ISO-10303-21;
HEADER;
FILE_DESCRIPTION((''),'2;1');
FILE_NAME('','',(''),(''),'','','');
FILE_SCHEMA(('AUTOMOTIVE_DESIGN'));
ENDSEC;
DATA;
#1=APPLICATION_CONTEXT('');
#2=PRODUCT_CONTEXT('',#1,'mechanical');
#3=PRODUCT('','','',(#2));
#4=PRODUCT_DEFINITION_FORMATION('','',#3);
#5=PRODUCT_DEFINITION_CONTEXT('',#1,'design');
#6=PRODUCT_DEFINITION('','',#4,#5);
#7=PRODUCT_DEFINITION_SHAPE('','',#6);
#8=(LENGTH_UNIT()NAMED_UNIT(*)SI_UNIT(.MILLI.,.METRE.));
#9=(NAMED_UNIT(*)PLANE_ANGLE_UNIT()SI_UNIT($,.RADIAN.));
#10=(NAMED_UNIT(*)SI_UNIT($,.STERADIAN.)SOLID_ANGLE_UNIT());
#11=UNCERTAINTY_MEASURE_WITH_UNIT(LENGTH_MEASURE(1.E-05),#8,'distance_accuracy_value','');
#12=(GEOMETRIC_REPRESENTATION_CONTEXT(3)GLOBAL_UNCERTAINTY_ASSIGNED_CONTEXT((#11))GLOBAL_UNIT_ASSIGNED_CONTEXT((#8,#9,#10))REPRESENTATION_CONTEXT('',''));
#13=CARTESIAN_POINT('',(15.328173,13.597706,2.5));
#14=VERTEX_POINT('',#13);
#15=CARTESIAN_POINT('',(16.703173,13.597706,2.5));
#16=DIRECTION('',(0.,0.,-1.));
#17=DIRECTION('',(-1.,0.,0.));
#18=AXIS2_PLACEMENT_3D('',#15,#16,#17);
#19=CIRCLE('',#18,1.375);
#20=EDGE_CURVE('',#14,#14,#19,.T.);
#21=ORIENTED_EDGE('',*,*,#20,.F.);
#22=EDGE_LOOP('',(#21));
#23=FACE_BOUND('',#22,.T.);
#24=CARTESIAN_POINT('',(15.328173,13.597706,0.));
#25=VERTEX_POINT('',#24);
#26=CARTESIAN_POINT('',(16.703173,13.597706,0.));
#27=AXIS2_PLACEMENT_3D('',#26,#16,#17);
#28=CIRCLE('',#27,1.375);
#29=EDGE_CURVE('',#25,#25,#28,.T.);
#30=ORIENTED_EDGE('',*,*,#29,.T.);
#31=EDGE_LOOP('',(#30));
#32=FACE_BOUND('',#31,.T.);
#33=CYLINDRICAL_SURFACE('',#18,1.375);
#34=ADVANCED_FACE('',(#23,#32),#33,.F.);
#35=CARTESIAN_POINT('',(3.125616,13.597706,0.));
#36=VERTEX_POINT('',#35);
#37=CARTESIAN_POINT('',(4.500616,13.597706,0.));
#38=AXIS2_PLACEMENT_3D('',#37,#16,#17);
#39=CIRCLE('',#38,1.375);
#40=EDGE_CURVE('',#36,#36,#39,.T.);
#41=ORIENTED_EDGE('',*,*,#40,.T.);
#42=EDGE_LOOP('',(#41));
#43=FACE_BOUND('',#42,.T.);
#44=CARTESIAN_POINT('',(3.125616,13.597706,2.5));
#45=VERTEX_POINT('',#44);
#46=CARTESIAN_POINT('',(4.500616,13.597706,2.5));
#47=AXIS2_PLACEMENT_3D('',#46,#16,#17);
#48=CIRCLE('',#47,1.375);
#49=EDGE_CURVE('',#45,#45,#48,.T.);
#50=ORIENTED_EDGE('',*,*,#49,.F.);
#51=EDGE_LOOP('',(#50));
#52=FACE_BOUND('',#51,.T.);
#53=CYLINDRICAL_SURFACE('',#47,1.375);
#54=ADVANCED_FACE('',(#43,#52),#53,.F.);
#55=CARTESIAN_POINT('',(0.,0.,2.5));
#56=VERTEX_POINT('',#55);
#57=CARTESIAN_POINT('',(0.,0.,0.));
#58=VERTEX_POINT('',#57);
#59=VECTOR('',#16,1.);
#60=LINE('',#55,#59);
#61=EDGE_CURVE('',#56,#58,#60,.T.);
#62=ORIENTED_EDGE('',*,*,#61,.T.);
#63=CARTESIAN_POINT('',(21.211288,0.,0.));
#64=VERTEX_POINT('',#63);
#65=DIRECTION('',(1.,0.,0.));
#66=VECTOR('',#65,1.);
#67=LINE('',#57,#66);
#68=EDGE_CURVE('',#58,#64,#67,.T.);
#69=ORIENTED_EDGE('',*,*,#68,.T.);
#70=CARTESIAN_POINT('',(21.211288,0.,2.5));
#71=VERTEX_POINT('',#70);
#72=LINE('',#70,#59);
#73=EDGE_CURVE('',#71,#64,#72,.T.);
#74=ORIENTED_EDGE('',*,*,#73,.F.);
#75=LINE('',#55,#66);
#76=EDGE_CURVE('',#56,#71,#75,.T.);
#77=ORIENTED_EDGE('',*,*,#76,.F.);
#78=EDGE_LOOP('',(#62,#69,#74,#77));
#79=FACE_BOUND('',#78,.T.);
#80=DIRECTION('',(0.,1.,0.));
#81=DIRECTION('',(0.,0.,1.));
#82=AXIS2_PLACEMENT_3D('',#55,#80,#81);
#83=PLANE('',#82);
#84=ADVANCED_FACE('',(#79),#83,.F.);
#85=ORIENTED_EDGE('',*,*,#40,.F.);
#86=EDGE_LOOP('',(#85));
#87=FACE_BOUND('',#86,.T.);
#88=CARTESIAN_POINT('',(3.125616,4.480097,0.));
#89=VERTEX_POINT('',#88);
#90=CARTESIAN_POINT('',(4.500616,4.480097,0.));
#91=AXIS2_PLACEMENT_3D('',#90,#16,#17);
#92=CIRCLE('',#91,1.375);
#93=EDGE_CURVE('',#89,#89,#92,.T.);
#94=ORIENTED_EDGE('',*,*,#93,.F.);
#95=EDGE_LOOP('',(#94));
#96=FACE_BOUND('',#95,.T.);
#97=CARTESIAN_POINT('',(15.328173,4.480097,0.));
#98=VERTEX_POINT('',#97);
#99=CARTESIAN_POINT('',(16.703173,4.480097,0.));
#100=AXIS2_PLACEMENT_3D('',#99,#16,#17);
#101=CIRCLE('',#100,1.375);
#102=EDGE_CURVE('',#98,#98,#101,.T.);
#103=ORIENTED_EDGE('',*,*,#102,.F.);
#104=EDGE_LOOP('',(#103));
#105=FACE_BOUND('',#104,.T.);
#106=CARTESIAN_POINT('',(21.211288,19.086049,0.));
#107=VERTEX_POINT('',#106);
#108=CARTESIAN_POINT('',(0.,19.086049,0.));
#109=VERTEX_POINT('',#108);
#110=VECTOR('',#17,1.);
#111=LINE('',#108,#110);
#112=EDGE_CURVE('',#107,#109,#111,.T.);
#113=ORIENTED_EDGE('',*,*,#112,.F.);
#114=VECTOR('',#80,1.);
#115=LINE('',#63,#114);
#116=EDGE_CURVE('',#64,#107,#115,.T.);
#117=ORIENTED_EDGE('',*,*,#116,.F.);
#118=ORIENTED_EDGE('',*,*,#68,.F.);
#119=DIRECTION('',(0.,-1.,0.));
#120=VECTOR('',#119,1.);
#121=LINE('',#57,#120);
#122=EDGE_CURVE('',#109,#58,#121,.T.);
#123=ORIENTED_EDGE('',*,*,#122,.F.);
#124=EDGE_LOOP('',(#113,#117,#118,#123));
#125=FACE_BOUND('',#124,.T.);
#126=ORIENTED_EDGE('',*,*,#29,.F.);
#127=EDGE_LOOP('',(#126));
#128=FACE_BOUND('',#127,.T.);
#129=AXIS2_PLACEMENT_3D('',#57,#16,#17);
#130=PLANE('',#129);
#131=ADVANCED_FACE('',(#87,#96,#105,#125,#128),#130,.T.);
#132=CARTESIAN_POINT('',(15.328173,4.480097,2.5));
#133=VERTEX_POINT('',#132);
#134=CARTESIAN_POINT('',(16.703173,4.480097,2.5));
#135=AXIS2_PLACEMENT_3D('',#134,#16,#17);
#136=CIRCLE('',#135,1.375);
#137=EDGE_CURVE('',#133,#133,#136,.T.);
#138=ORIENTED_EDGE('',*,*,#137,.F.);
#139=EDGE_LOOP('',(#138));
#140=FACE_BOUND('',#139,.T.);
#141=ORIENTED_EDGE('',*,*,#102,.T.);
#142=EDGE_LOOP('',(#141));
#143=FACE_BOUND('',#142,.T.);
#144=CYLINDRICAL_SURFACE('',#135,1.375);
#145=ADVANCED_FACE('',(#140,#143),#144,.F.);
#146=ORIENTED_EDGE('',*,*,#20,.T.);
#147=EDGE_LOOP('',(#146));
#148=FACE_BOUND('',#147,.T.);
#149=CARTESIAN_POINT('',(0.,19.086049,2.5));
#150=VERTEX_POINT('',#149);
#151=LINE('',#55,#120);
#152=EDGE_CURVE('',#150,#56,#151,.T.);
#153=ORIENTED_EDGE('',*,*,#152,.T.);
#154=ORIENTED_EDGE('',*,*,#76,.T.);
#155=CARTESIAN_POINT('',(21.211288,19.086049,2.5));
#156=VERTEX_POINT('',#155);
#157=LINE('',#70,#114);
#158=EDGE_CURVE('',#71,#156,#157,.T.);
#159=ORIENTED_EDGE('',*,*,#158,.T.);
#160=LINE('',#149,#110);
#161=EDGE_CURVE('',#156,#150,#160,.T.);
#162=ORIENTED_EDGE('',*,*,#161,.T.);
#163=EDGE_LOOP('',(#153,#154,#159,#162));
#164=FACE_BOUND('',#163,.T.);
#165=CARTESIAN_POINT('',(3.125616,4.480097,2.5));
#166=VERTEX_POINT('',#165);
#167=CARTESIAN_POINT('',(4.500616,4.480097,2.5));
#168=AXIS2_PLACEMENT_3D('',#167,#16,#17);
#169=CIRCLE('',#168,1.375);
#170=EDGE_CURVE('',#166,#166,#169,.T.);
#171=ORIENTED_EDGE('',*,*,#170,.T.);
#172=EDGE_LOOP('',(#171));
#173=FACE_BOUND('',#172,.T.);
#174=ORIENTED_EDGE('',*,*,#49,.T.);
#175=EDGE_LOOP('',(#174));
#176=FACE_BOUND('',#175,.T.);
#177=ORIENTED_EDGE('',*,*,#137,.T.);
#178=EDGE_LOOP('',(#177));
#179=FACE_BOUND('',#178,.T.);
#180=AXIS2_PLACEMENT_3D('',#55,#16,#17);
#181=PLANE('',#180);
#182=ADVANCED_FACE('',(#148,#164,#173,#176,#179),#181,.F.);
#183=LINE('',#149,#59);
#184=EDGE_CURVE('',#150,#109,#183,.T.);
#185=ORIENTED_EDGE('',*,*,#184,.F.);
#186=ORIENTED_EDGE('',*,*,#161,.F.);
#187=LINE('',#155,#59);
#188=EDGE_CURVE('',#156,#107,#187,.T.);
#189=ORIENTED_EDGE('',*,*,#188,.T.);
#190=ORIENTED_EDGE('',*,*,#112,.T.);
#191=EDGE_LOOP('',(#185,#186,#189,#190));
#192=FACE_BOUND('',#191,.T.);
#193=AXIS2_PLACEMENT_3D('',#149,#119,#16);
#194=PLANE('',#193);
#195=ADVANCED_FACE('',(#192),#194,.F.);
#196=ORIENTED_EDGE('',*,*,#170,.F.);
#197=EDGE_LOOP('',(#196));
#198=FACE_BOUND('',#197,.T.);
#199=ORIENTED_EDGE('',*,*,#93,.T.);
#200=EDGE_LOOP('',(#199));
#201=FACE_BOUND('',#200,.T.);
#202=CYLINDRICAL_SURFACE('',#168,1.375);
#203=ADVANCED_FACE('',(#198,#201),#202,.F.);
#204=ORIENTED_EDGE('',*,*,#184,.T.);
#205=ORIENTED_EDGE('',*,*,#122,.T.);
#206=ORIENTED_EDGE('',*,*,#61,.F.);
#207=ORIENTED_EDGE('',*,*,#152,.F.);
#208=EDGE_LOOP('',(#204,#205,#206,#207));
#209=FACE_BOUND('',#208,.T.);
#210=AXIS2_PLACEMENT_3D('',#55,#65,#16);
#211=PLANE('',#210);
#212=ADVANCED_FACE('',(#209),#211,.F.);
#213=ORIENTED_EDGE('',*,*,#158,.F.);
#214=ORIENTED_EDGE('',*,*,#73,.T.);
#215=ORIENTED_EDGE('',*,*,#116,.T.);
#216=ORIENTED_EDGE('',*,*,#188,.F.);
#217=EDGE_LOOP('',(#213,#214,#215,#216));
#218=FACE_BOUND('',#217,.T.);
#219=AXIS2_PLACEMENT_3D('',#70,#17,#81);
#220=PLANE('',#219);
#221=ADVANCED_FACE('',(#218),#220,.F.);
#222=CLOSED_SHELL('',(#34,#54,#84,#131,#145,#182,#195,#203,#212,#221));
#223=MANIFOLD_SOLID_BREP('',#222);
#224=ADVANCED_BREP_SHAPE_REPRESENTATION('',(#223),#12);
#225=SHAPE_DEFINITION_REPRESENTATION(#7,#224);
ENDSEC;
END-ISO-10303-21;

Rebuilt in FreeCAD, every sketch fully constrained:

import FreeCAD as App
import Part
import Sketcher

doc = App.newDocument("Part")
params = doc.addObject("Spreadsheet::Sheet", "Params")
for row, (alias, value) in enumerate([
    ("pad1_length", "2.5 mm"),
    ("sketch2_diameter", "2.75 mm"),
], start=1):
    params.set(f"A{row}", alias)
    params.set(f"B{row}", "=" + value)
    params.setAlias(f"B{row}", alias)

body = doc.addObject("PartDesign::Body", "Body")

# Sketch on XY plane
sketch1 = doc.addObject("Sketcher::SketchObject", "Sketch")
body.addObject(sketch1)
sketch1.AttachmentSupport = (doc.XY_Plane, [""])
sketch1.MapMode = "FlatFace"
sketch1.addGeometry([
    Part.LineSegment(App.Vector(0, 19.086049, 0), App.Vector(0, 0, 0)),
    Part.LineSegment(App.Vector(0, 0, 0), App.Vector(21.211288, 0, 0)),
    Part.LineSegment(App.Vector(21.211288, 0, 0), App.Vector(21.211288, 19.086049, 0)),
    Part.LineSegment(App.Vector(21.211288, 19.086049, 0), App.Vector(0, 19.086049, 0)),
], False)
sketch1.addConstraint([
    Sketcher.Constraint("Coincident", 0, 2, 1, 1),
    Sketcher.Constraint("Coincident", 1, 2, 2, 1),
    Sketcher.Constraint("Coincident", 2, 2, 3, 1),
    Sketcher.Constraint("Coincident", 3, 2, 0, 1),
    Sketcher.Constraint("Vertical", 0),
    Sketcher.Constraint("Horizontal", 1),
    Sketcher.Constraint("Vertical", 2),
    Sketcher.Constraint("Horizontal", 3),
    Sketcher.Constraint("Coincident", 0, 2, -1, 1),
    Sketcher.Constraint("DistanceY", 0, 2, 0, 1, 19.086049),
    Sketcher.Constraint("DistanceX", 1, 1, 1, 2, 21.211288),
])
pad1 = doc.addObject("PartDesign::Pad", "Pad")
body.addObject(pad1)
pad1.Profile = sketch1
pad1.setExpression("Length", "Params.pad1_length")

# Sketch on XY plane
sketch2 = doc.addObject("Sketcher::SketchObject", "Sketch001")
body.addObject(sketch2)
sketch2.AttachmentSupport = (doc.XY_Plane, [""])
sketch2.MapMode = "FlatFace"
sketch2.addGeometry([
    Part.Circle(App.Vector(16.703173, 13.597706, 0), App.Vector(0, 0, 1), 1.375),
    Part.Circle(App.Vector(4.500616, 13.597706, 0), App.Vector(0, 0, 1), 1.375),
    Part.Circle(App.Vector(16.703173, 4.480097, 0), App.Vector(0, 0, 1), 1.375),
    Part.Circle(App.Vector(4.500616, 4.480097, 0), App.Vector(0, 0, 1), 1.375),
], False)
sketch2.addConstraint([
    Sketcher.Constraint("Equal", 0, 1),
    Sketcher.Constraint("Equal", 1, 2),
    Sketcher.Constraint("Equal", 2, 3),
    Sketcher.Constraint("Horizontal", 0, 3, 1, 3),
    Sketcher.Constraint("Horizontal", 2, 3, 3, 3),
    Sketcher.Constraint("Vertical", 0, 3, 2, 3),
    Sketcher.Constraint("Vertical", 1, 3, 3, 3),
    Sketcher.Constraint("Diameter", 0, 2.75),
    Sketcher.Constraint("DistanceY", 2, 3, 0, 3, 9.11761),
    Sketcher.Constraint("DistanceX", -1, 1, 0, 3, 16.703173),
    Sketcher.Constraint("DistanceY", -1, 1, 0, 3, 13.597706),
    Sketcher.Constraint("DistanceX", -1, 1, 1, 3, 4.500616),
])
sketch2.setExpression("Constraints[7]", "Params.sketch2_diameter")
pocket1 = doc.addObject("PartDesign::Pocket", "Pocket")
body.addObject(pocket1)
pocket1.Profile = sketch2
pocket1.Type = "ThroughAll"
pocket1.Reversed = True

doc.recompute()
